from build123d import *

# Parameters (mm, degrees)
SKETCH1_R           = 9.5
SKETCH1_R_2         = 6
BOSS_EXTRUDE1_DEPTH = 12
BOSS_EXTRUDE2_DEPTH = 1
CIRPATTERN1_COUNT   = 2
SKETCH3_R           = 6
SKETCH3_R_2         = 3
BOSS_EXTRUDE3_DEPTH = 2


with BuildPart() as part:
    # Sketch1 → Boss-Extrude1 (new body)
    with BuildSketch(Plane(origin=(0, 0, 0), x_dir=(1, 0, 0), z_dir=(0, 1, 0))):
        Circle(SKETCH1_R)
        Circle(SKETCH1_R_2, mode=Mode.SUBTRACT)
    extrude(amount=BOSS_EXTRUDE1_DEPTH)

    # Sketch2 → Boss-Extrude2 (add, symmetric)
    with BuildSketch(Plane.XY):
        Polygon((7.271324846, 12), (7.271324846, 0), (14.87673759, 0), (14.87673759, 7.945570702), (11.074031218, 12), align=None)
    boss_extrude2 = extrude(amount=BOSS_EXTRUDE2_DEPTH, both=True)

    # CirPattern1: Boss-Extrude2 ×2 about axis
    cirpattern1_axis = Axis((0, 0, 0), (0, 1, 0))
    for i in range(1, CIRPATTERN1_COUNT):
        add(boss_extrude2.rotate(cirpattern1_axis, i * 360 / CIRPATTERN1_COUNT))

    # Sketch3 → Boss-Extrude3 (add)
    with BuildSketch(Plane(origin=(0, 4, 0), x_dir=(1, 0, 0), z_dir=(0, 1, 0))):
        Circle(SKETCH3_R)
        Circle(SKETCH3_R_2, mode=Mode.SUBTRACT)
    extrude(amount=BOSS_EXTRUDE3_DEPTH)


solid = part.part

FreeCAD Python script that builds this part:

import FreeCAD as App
import Part
import Sketcher
from FreeCAD import Vector

doc = App.newDocument("Part")
body = doc.addObject("PartDesign::Body", "Body")

sketch1 = body.newObject("Sketcher::SketchObject", "Sketch")
sketch1.AttachmentSupport = (doc.getObject("XZ_Plane"), [""])
sketch1.MapMode = "FlatFace"
sketch1.addGeometry([
    Part.Circle(Vector(0, 0, 0), Vector(0, 0, 1), 10),
    Part.Circle(Vector(0, 0, 0), Vector(0, 0, 1), 6),
], False)
sketch1.addConstraint([
    Sketcher.Constraint("Coincident", 0, 3, -1, 1),
    Sketcher.Constraint("Coincident", 1, 3, -1, 1),
    Sketcher.Constraint("Diameter", 0, 19.0),
    Sketcher.Constraint("Diameter", 1, 12.0),
])
pad1 = body.newObject("PartDesign::Pad", "Pad")
pad1.Profile = sketch1
pad1.Length = 12
pad1.Reversed = True

sketch2 = body.newObject("Sketcher::SketchObject", "Sketch001")
sketch2.AttachmentSupport = (doc.getObject("XY_Plane"), [""])
sketch2.MapMode = "FlatFace"
sketch2.addGeometry([
    Part.LineSegment(Vector(7.3, 12, 0), Vector(7.3, 0, 0)),
    Part.LineSegment(Vector(7.3, 0, 0), Vector(14.9, 0, 0)),
    Part.LineSegment(Vector(14.9, 0, 0), Vector(14.9, 7.9, 0)),
    Part.LineSegment(Vector(14.9, 7.9, 0), Vector(11.1, 12, 0)),
    Part.LineSegment(Vector(11.1, 12, 0), Vector(7.3, 12, 0)),
], False)
sketch2.addConstraint([
    Sketcher.Constraint("Coincident", 0, 2, 1, 1),
    Sketcher.Constraint("Coincident", 1, 2, 2, 1),
    Sketcher.Constraint("Coincident", 2, 2, 3, 1),
    Sketcher.Constraint("Coincident", 3, 2, 4, 1),
    Sketcher.Constraint("Coincident", 4, 2, 0, 1),
    Sketcher.Constraint("Vertical", 0),
    Sketcher.Constraint("Horizontal", 1),
    Sketcher.Constraint("Vertical", 2),
    Sketcher.Constraint("Horizontal", 4),
    Sketcher.Constraint("PointOnObject", 0, 2, -1),
    Sketcher.Constraint("DistanceY", 0, 2, 0, 1, 12.0),
    Sketcher.Constraint("DistanceY", 2, 1, 2, 2, 7.945571),
    Sketcher.Constraint("DistanceX", 1, 1, 1, 2, 7.605413),
    Sketcher.Constraint("DistanceX", 4, 2, 4, 1, 3.802706),
    Sketcher.Constraint("DistanceX", -1, 1, 3, 2, 11.074031),
])
pad2 = body.newObject("PartDesign::Pad", "Pad001")
pad2.Profile = sketch2
pad2.Length = 2
pad2.Midplane = True
doc.recompute()

polarpattern = body.newObject("PartDesign::PolarPattern", "PolarPattern")
polarpattern.Originals = [pad2]
polarpattern.Axis = (doc.getObject("Y_Axis"), [""])
polarpattern.Angle = 360
polarpattern.Occurrences = 2
body.Tip = polarpattern

sketch3 = body.newObject("Sketcher::SketchObject", "Sketch002")
sketch3.AttachmentSupport = (doc.getObject("XZ_Plane"), [""])
sketch3.MapMode = "FlatFace"
sketch3.AttachmentOffset = App.Placement(Vector(0, 0, -4), App.Rotation())
sketch3.addGeometry([
    Part.Circle(Vector(0, 0, 0), Vector(0, 0, 1), 6),
    Part.Circle(Vector(0, 0, 0), Vector(0, 0, 1), 3),
], False)
sketch3.addConstraint([
    Sketcher.Constraint("Coincident", 0, 3, -1, 1),
    Sketcher.Constraint("Coincident", 1, 3, -1, 1),
    Sketcher.Constraint("Diameter", 0, 12.0),
    Sketcher.Constraint("Diameter", 1, 6.0),
])
pad3 = body.newObject("PartDesign::Pad", "Pad002")
pad3.Profile = sketch3
pad3.Length = 2
pad3.Reversed = True

doc.recompute()
